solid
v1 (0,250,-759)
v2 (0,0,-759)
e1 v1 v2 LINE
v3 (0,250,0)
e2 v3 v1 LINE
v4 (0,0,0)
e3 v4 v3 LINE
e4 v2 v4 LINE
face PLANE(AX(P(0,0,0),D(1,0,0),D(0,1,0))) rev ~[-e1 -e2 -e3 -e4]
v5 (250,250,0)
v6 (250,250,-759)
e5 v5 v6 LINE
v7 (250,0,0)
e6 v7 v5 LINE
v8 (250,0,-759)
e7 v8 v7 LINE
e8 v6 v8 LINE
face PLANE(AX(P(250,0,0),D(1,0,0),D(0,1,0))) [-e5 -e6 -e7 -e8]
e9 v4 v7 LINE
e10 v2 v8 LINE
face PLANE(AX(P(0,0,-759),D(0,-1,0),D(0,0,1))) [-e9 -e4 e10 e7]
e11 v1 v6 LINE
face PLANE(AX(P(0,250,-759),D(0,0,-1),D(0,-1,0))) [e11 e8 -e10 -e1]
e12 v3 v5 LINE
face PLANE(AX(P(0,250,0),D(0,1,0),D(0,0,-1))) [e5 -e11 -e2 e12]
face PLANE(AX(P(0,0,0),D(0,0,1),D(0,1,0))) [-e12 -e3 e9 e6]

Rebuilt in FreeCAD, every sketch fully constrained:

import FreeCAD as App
import Part
import Sketcher

V = App.Vector
Q = App.Units.Quantity


def add_polygon(sketch, points):
    """Adds a closed chain of lines whose ends are joined by coincident constraints."""
    first, n = sketch.GeometryCount, len(points)
    for a, b in zip(points, points[1:] + points[:1]):
        sketch.addGeometry(Part.LineSegment(App.Vector(*a, 0), App.Vector(*b, 0)), False)
    for i in range(n):
        sketch.addConstraint(Sketcher.Constraint("Coincident", first + i, 2, first + (i + 1) % n, 1))

doc = App.newDocument("Part")
body = doc.addObject("PartDesign::Body", "Body")

# Sketch on YZ plane
sketch1 = doc.addObject("Sketcher::SketchObject", "Sketch")
body.addObject(sketch1)
sketch1.AttachmentSupport = (doc.YZ_Plane, [""])
sketch1.MapMode = "FlatFace"
add_polygon(sketch1, [(250, 0), (0, 0), (0, -759), (250, -759)])  # lines 0-3
sketch1.addConstraint([
    Sketcher.Constraint("Horizontal", 0),
    Sketcher.Constraint("Vertical", 1),
    Sketcher.Constraint("Horizontal", 2),
    Sketcher.Constraint("Vertical", 3),
    Sketcher.Constraint("Coincident", 0, 2, -1, 1),
    Sketcher.Constraint("DistanceX", 0, 2, 0, 1, Q("250 mm")),
    Sketcher.Constraint("DistanceY", 1, 2, 1, 1, Q("759 mm")),
])
pad1 = doc.addObject("PartDesign::Pad", "Pad")
body.addObject(pad1)
pad1.Profile = sketch1
pad1.Length = 250

doc.recompute()
